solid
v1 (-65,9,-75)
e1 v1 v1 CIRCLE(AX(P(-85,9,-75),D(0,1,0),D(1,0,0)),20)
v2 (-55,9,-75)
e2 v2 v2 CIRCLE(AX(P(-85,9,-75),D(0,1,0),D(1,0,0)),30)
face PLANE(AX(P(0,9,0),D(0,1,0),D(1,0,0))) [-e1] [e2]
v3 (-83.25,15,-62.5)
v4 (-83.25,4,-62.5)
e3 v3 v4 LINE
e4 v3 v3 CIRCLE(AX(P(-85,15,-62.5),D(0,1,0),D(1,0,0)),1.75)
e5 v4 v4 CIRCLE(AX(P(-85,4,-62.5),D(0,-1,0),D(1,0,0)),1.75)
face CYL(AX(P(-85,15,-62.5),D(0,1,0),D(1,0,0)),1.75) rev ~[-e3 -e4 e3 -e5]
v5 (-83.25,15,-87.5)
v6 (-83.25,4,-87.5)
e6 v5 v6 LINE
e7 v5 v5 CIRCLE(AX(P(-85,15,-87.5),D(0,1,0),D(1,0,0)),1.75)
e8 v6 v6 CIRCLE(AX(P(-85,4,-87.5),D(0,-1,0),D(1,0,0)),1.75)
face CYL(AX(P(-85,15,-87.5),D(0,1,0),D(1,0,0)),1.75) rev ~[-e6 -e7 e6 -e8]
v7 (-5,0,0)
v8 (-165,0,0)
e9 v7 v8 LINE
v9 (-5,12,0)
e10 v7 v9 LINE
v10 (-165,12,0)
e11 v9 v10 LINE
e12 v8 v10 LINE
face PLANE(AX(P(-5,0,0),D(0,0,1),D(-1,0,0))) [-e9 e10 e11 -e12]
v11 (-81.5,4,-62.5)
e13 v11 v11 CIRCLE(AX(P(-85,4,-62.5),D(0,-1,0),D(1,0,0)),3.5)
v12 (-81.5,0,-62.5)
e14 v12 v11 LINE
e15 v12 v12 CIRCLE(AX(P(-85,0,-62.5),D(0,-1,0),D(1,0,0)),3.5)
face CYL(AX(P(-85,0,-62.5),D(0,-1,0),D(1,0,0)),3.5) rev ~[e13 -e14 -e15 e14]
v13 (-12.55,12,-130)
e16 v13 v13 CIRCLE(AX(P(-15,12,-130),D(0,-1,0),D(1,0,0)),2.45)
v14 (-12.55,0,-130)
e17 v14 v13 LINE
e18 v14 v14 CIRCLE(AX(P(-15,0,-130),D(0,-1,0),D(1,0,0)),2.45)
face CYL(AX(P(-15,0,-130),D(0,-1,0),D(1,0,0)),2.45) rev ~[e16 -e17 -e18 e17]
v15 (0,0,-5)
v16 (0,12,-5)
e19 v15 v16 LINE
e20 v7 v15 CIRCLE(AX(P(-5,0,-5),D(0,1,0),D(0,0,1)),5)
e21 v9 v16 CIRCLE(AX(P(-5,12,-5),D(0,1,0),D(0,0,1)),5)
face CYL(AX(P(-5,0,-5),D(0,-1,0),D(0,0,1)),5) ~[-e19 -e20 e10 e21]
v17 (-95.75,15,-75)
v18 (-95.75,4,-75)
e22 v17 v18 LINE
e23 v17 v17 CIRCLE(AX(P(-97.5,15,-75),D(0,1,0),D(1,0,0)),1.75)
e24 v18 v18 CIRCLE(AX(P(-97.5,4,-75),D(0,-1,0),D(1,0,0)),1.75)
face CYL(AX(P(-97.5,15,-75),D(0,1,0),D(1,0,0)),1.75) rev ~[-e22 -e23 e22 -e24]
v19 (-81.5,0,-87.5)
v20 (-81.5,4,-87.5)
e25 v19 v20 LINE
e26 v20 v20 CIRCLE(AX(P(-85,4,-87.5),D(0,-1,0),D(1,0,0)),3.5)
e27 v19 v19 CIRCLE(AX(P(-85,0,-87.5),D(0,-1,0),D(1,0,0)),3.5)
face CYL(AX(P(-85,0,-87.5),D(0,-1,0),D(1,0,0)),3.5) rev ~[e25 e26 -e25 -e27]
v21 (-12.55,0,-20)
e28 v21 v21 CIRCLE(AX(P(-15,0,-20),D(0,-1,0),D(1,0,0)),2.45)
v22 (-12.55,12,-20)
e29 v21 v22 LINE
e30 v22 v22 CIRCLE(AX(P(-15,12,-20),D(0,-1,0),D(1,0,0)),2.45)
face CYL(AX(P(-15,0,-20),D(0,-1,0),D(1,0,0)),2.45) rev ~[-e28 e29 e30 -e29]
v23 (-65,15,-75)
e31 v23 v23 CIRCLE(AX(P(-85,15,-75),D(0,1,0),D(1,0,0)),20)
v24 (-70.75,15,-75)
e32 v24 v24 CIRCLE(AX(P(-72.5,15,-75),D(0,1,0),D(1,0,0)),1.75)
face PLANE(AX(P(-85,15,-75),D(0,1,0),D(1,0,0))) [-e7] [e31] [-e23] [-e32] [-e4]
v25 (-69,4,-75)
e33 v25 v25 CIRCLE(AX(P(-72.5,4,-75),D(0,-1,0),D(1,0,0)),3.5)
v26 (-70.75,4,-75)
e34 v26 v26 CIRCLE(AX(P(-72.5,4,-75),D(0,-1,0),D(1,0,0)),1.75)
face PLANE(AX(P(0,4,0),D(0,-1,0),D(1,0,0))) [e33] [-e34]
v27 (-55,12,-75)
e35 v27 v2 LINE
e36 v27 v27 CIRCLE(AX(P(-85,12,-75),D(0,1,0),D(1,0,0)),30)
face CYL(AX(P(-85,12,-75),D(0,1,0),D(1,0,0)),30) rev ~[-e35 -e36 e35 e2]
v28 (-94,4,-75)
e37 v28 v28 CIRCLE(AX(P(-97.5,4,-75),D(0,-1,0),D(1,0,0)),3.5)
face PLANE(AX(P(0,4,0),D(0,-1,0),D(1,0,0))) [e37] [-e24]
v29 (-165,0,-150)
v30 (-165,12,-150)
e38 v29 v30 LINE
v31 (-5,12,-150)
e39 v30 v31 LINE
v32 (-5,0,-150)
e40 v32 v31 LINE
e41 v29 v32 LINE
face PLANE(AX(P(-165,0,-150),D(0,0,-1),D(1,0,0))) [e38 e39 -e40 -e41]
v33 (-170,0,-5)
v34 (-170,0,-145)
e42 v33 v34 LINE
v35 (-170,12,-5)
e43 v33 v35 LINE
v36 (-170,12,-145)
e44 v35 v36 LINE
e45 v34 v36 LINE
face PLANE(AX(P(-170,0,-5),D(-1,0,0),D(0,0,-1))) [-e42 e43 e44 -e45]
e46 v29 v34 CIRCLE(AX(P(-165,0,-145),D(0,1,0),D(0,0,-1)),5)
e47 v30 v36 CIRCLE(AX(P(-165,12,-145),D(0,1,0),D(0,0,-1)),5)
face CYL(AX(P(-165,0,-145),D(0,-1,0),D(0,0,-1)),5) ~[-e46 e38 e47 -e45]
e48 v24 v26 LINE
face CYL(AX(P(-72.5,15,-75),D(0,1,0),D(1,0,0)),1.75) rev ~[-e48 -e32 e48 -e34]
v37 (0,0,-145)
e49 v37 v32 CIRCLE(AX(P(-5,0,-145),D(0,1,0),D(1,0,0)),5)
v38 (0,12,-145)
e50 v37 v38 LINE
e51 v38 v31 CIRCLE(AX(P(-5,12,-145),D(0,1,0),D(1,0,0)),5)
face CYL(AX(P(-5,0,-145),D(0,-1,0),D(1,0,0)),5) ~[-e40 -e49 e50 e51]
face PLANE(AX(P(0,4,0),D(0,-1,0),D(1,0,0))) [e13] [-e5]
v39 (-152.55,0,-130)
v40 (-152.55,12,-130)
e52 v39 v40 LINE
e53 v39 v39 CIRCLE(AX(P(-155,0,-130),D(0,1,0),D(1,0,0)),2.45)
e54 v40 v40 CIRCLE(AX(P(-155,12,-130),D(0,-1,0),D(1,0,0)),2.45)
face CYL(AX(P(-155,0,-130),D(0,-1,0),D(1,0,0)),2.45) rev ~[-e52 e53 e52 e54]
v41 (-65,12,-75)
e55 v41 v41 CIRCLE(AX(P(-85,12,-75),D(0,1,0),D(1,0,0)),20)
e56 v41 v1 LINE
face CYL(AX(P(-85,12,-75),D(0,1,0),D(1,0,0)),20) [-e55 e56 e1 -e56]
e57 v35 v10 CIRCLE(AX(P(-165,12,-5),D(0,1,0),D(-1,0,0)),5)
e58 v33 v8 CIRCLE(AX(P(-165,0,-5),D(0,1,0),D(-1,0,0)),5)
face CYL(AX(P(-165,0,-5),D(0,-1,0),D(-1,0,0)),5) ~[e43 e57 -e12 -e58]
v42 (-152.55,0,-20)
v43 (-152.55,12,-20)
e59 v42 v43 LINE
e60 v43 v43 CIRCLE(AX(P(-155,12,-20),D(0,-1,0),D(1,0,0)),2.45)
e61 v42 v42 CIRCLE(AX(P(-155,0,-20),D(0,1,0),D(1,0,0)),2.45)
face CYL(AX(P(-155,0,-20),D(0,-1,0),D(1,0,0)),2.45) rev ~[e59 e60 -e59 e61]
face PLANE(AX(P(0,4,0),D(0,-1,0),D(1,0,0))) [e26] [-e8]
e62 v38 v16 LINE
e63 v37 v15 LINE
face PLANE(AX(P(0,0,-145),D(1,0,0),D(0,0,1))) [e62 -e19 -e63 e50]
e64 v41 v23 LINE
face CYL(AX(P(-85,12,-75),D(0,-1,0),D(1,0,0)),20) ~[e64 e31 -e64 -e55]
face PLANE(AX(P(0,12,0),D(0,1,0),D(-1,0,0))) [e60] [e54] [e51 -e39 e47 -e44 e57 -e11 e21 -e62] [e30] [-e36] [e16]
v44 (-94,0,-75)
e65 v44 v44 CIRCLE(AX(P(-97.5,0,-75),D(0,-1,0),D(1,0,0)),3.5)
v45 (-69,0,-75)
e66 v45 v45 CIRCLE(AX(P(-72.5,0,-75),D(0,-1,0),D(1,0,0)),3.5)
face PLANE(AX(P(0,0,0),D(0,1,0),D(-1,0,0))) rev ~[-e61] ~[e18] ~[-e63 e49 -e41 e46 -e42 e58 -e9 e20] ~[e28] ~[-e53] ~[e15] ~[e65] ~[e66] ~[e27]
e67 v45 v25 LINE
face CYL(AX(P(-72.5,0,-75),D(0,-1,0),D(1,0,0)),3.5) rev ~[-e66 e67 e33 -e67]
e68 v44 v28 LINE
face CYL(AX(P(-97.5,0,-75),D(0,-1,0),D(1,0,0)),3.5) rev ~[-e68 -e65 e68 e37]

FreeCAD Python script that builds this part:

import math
import FreeCAD as App
import Part
import Sketcher
Q = App.Units.Quantity

doc = App.newDocument("Part")
body = doc.addObject("PartDesign::Body", "Body")

sketch1 = doc.addObject("Sketcher::SketchObject", "Sketch")
body.addObject(sketch1)
sketch1.AttachmentSupport = (doc.XZ_Plane, [""])
sketch1.MapMode = "FlatFace"
sketch1.addGeometry([
    Part.LineSegment(App.Vector(-165, 0, 0), App.Vector(-5, 0, 0)),
    Part.ArcOfCircle(Part.Circle(App.Vector(-5, -5, 0), App.Vector(0, 0, 1), 5), math.radians(0), math.radians(90)),
    Part.LineSegment(App.Vector(0, -5, 0), App.Vector(0, -145, 0)),
    Part.ArcOfCircle(Part.Circle(App.Vector(-5, -145, 0), App.Vector(0, 0, 1), 5), math.radians(-90), math.radians(0)),
    Part.LineSegment(App.Vector(-5, -150, 0), App.Vector(-165, -150, 0)),
    Part.ArcOfCircle(Part.Circle(App.Vector(-165, -145, 0), App.Vector(0, 0, 1), 5), math.radians(180), math.radians(270)),
    Part.LineSegment(App.Vector(-170, -145, 0), App.Vector(-170, -5, 0)),
    Part.ArcOfCircle(Part.Circle(App.Vector(-165, -5, 0), App.Vector(0, 0, 1), 5), math.radians(90), math.radians(180)),
], False)
sketch1.addConstraint([
    Sketcher.Constraint("Tangent", 0, 2, 1, 2),
    Sketcher.Constraint("Tangent", 1, 1, 2, 1),
    Sketcher.Constraint("Tangent", 2, 2, 3, 2),
    Sketcher.Constraint("Tangent", 3, 1, 4, 1),
    Sketcher.Constraint("Tangent", 4, 2, 5, 2),
    Sketcher.Constraint("Tangent", 5, 1, 6, 1),
    Sketcher.Constraint("Tangent", 6, 2, 7, 2),
    Sketcher.Constraint("Tangent", 7, 1, 0, 1),
    Sketcher.Constraint("Horizontal", 0),
    Sketcher.Constraint("Vertical", 2),
    Sketcher.Constraint("Horizontal", 4),
    Sketcher.Constraint("Vertical", 6),
    Sketcher.Constraint("Equal", 1, 3),
    Sketcher.Constraint("Equal", 3, 5),
    Sketcher.Constraint("Equal", 5, 7),
    Sketcher.Constraint("PointOnObject", 0, 2, -1),
    Sketcher.Constraint("PointOnObject", 1, 1, -2),
    Sketcher.Constraint("Radius", 1, Q("5 mm")),
    Sketcher.Constraint("DistanceY", 3, 1, -1, 1, Q("150 mm")),
    Sketcher.Constraint("DistanceX", 5, 1, -1, 1, Q("170 mm")),
])
pad1 = doc.addObject("PartDesign::Pad", "Pad")
body.addObject(pad1)
pad1.Profile = sketch1
pad1.Length = 12
pad1.Reversed = True

sketch2 = doc.addObject("Sketcher::SketchObject", "Sketch001")
body.addObject(sketch2)
sketch2.AttachmentSupport = (doc.XZ_Plane, [""])
sketch2.MapMode = "FlatFace"
sketch2.AttachmentOffset = App.Placement(App.Vector(0, 0, -12), App.Rotation())
sketch2.addGeometry([
    Part.Circle(App.Vector(-85, -75, 0), App.Vector(0, 0, 1), 30),
    Part.Circle(App.Vector(-85, -75, 0), App.Vector(0, 0, 1), 20),
], False)
sketch2.addConstraint([
    Sketcher.Constraint("Coincident", 1, 3, 0, 3),
    Sketcher.Constraint("Diameter", 0, Q("60 mm")),
    Sketcher.Constraint("Diameter", 1, Q("40 mm")),
    Sketcher.Constraint("DistanceX", 0, 3, -1, 1, Q("85 mm")),
    Sketcher.Constraint("DistanceY", 0, 3, -1, 1, Q("75 mm")),
])
pocket1 = doc.addObject("PartDesign::Pocket", "Pocket")
body.addObject(pocket1)
pocket1.Profile = sketch2
pocket1.Length = 3
pocket1.Reversed = True

sketch3 = doc.addObject("Sketcher::SketchObject", "Sketch002")
body.addObject(sketch3)
sketch3.AttachmentSupport = (doc.XZ_Plane, [""])
sketch3.MapMode = "FlatFace"
sketch3.AttachmentOffset = App.Placement(App.Vector(0, 0, -12), App.Rotation())
sketch3.addGeometry(Part.Circle(App.Vector(-85, -75, 0), App.Vector(0, 0, 1), 20), False)
sketch3.addConstraint([
    Sketcher.Constraint("Diameter", 0, Q("40 mm")),
    Sketcher.Constraint("DistanceX", 0, 3, -1, 1, Q("85 mm")),
    Sketcher.Constraint("DistanceY", 0, 3, -1, 1, Q("75 mm")),
])
pad2 = doc.addObject("PartDesign::Pad", "Pad001")
body.addObject(pad2)
pad2.Profile = sketch3
pad2.Length = 3
pad2.Reversed = True

sketch4 = doc.addObject("Sketcher::SketchObject", "Sketch003")
body.addObject(sketch4)
sketch4.AttachmentSupport = (doc.XZ_Plane, [""])
sketch4.MapMode = "FlatFace"
sketch4.AttachmentOffset = App.Placement(App.Vector(0, 0, -15), App.Rotation())
sketch4.addGeometry([
    Part.Circle(App.Vector(-97.5, -75, 0), App.Vector(0, 0, 1), 1.8),
    Part.Circle(App.Vector(-85, -87.5, 0), App.Vector(0, 0, 1), 1.8),
    Part.Circle(App.Vector(-85, -62.5, 0), App.Vector(0, 0, 1), 1.8),
    Part.Circle(App.Vector(-72.5, -75, 0), App.Vector(0, 0, 1), 1.8),
], False)
sketch4.addConstraint([
    Sketcher.Constraint("Equal", 0, 1),
    Sketcher.Constraint("Equal", 1, 2),
    Sketcher.Constraint("Equal", 2, 3),
    Sketcher.Constraint("Horizontal", 0, 3, 3, 3),
    Sketcher.Constraint("Vertical", 1, 3, 2, 3),
    Sketcher.Constraint("Diameter", 0, Q("3.5 mm")),
    Sketcher.Constraint("DistanceY", 0, 3, -1, 1, Q("75 mm")),
    Sketcher.Constraint("DistanceX", 1, 3, -1, 1, Q("85 mm")),
    Sketcher.Constraint("DistanceY", 1, 3, 2, 3, Q("25 mm")),
    Sketcher.Constraint("DistanceX", 0, 3, 3, 3, Q("25 mm")),
    Sketcher.Constraint("DistanceX", 0, 3, -1, 1, Q("97.5 mm")),
    Sketcher.Constraint("DistanceY", 1, 3, -1, 1, Q("87.5 mm")),
])
pocket2 = doc.addObject("PartDesign::Pocket", "Pocket001")
body.addObject(pocket2)
pocket2.Profile = sketch4
pocket2.Length = 20
pocket2.Reversed = True

sketch5 = doc.addObject("Sketcher::SketchObject", "Sketch004")
body.addObject(sketch5)
sketch5.AttachmentSupport = (doc.XZ_Plane, [""])
sketch5.MapMode = "FlatFace"
sketch5.addGeometry([
    Part.Circle(App.Vector(-85, -87.5, 0), App.Vector(0, 0, 1), 3.5),
    Part.Circle(App.Vector(-85, -87.5, 0), App.Vector(0, 0, 1), 1.8),
    Part.Circle(App.Vector(-72.5, -75, 0), App.Vector(0, 0, 1), 3.5),
    Part.Circle(App.Vector(-72.5, -75, 0), App.Vector(0, 0, 1), 1.8),
    Part.Circle(App.Vector(-85, -62.5, 0), App.Vector(0, 0, 1), 3.5),
    Part.Circle(App.Vector(-85, -62.5, 0), App.Vector(0, 0, 1), 1.8),
    Part.Circle(App.Vector(-97.5, -75, 0), App.Vector(0, 0, 1), 3.5),
    Part.Circle(App.Vector(-97.5, -75, 0), App.Vector(0, 0, 1), 1.8),
], False)
sketch5.addConstraint([
    Sketcher.Constraint("Coincident", 1, 3, 0, 3),
    Sketcher.Constraint("Coincident", 3, 3, 2, 3),
    Sketcher.Constraint("Coincident", 5, 3, 4, 3),
    Sketcher.Constraint("Coincident", 7, 3, 6, 3),
    Sketcher.Constraint("Equal", 0, 2),
    Sketcher.Constraint("Equal", 1, 3),
    Sketcher.Constraint("Equal", 2, 4),
    Sketcher.Constraint("Equal", 3, 5),
    Sketcher.Constraint("Equal", 4, 6),
    Sketcher.Constraint("Equal", 5, 7),
    Sketcher.Constraint("Horizontal", 3, 3, 6, 3),
    Sketcher.Constraint("Vertical", 1, 3, 4, 3),
    Sketcher.Constraint("Diameter", 0, Q("7 mm")),
    Sketcher.Constraint("Diameter", 1, Q("3.5 mm")),
    Sketcher.Constraint("DistanceX", 0, 3, -1, 1, Q("85 mm")),
    Sketcher.Constraint("DistanceY", 2, 3, -1, 1, Q("75 mm")),
    Sketcher.Constraint("DistanceY", 0, 3, 4, 3, Q("25 mm")),
    Sketcher.Constraint("DistanceX", 6, 3, 2, 3, Q("25 mm")),
    Sketcher.Constraint("DistanceY", 0, 3, -1, 1, Q("87.5 mm")),
    Sketcher.Constraint("DistanceX", 2, 3, -1, 1, Q("72.5 mm")),
])
pocket3 = doc.addObject("PartDesign::Pocket", "Pocket002")
body.addObject(pocket3)
pocket3.Profile = sketch5
pocket3.Length = 4

sketch6 = doc.addObject("Sketcher::SketchObject", "Sketch005")
body.addObject(sketch6)
sketch6.AttachmentSupport = (doc.XZ_Plane, [""])
sketch6.MapMode = "FlatFace"
sketch6.addGeometry([
    Part.Circle(App.Vector(-15, -130, 0), App.Vector(0, 0, 1), 2.5),
    Part.Circle(App.Vector(-15, -20, 0), App.Vector(0, 0, 1), 2.5),
    Part.Circle(App.Vector(-155, -20, 0), App.Vector(0, 0, 1), 2.5),
    Part.Circle(App.Vector(-155, -130, 0), App.Vector(0, 0, 1), 2.5),
], False)
sketch6.addConstraint([
    Sketcher.Constraint("Equal", 0, 1),
    Sketcher.Constraint("Equal", 1, 2),
    Sketcher.Constraint("Equal", 2, 3),
    Sketcher.Constraint("Horizontal", 1, 3, 2, 3),
    Sketcher.Constraint("Horizontal", 0, 3, 3, 3),
    Sketcher.Constraint("Vertical", 0, 3, 1, 3),
    Sketcher.Constraint("Vertical", 2, 3, 3, 3),
    Sketcher.Constraint("Diameter", 0, Q("4.9 mm")),
    Sketcher.Constraint("DistanceX", 0, 3, -1, 1, Q("15 mm")),
    Sketcher.Constraint("DistanceY", 1, 3, -1, 1, Q("20 mm")),
    Sketcher.Constraint("DistanceY", 0, 3, -1, 1, Q("130 mm")),
    Sketcher.Constraint("DistanceX", 2, 3, -1, 1, Q("155 mm")),
])
pocket4 = doc.addObject("PartDesign::Pocket", "Pocket003")
body.addObject(pocket4)
pocket4.Profile = sketch6
pocket4.Length = 15

doc.recompute()
